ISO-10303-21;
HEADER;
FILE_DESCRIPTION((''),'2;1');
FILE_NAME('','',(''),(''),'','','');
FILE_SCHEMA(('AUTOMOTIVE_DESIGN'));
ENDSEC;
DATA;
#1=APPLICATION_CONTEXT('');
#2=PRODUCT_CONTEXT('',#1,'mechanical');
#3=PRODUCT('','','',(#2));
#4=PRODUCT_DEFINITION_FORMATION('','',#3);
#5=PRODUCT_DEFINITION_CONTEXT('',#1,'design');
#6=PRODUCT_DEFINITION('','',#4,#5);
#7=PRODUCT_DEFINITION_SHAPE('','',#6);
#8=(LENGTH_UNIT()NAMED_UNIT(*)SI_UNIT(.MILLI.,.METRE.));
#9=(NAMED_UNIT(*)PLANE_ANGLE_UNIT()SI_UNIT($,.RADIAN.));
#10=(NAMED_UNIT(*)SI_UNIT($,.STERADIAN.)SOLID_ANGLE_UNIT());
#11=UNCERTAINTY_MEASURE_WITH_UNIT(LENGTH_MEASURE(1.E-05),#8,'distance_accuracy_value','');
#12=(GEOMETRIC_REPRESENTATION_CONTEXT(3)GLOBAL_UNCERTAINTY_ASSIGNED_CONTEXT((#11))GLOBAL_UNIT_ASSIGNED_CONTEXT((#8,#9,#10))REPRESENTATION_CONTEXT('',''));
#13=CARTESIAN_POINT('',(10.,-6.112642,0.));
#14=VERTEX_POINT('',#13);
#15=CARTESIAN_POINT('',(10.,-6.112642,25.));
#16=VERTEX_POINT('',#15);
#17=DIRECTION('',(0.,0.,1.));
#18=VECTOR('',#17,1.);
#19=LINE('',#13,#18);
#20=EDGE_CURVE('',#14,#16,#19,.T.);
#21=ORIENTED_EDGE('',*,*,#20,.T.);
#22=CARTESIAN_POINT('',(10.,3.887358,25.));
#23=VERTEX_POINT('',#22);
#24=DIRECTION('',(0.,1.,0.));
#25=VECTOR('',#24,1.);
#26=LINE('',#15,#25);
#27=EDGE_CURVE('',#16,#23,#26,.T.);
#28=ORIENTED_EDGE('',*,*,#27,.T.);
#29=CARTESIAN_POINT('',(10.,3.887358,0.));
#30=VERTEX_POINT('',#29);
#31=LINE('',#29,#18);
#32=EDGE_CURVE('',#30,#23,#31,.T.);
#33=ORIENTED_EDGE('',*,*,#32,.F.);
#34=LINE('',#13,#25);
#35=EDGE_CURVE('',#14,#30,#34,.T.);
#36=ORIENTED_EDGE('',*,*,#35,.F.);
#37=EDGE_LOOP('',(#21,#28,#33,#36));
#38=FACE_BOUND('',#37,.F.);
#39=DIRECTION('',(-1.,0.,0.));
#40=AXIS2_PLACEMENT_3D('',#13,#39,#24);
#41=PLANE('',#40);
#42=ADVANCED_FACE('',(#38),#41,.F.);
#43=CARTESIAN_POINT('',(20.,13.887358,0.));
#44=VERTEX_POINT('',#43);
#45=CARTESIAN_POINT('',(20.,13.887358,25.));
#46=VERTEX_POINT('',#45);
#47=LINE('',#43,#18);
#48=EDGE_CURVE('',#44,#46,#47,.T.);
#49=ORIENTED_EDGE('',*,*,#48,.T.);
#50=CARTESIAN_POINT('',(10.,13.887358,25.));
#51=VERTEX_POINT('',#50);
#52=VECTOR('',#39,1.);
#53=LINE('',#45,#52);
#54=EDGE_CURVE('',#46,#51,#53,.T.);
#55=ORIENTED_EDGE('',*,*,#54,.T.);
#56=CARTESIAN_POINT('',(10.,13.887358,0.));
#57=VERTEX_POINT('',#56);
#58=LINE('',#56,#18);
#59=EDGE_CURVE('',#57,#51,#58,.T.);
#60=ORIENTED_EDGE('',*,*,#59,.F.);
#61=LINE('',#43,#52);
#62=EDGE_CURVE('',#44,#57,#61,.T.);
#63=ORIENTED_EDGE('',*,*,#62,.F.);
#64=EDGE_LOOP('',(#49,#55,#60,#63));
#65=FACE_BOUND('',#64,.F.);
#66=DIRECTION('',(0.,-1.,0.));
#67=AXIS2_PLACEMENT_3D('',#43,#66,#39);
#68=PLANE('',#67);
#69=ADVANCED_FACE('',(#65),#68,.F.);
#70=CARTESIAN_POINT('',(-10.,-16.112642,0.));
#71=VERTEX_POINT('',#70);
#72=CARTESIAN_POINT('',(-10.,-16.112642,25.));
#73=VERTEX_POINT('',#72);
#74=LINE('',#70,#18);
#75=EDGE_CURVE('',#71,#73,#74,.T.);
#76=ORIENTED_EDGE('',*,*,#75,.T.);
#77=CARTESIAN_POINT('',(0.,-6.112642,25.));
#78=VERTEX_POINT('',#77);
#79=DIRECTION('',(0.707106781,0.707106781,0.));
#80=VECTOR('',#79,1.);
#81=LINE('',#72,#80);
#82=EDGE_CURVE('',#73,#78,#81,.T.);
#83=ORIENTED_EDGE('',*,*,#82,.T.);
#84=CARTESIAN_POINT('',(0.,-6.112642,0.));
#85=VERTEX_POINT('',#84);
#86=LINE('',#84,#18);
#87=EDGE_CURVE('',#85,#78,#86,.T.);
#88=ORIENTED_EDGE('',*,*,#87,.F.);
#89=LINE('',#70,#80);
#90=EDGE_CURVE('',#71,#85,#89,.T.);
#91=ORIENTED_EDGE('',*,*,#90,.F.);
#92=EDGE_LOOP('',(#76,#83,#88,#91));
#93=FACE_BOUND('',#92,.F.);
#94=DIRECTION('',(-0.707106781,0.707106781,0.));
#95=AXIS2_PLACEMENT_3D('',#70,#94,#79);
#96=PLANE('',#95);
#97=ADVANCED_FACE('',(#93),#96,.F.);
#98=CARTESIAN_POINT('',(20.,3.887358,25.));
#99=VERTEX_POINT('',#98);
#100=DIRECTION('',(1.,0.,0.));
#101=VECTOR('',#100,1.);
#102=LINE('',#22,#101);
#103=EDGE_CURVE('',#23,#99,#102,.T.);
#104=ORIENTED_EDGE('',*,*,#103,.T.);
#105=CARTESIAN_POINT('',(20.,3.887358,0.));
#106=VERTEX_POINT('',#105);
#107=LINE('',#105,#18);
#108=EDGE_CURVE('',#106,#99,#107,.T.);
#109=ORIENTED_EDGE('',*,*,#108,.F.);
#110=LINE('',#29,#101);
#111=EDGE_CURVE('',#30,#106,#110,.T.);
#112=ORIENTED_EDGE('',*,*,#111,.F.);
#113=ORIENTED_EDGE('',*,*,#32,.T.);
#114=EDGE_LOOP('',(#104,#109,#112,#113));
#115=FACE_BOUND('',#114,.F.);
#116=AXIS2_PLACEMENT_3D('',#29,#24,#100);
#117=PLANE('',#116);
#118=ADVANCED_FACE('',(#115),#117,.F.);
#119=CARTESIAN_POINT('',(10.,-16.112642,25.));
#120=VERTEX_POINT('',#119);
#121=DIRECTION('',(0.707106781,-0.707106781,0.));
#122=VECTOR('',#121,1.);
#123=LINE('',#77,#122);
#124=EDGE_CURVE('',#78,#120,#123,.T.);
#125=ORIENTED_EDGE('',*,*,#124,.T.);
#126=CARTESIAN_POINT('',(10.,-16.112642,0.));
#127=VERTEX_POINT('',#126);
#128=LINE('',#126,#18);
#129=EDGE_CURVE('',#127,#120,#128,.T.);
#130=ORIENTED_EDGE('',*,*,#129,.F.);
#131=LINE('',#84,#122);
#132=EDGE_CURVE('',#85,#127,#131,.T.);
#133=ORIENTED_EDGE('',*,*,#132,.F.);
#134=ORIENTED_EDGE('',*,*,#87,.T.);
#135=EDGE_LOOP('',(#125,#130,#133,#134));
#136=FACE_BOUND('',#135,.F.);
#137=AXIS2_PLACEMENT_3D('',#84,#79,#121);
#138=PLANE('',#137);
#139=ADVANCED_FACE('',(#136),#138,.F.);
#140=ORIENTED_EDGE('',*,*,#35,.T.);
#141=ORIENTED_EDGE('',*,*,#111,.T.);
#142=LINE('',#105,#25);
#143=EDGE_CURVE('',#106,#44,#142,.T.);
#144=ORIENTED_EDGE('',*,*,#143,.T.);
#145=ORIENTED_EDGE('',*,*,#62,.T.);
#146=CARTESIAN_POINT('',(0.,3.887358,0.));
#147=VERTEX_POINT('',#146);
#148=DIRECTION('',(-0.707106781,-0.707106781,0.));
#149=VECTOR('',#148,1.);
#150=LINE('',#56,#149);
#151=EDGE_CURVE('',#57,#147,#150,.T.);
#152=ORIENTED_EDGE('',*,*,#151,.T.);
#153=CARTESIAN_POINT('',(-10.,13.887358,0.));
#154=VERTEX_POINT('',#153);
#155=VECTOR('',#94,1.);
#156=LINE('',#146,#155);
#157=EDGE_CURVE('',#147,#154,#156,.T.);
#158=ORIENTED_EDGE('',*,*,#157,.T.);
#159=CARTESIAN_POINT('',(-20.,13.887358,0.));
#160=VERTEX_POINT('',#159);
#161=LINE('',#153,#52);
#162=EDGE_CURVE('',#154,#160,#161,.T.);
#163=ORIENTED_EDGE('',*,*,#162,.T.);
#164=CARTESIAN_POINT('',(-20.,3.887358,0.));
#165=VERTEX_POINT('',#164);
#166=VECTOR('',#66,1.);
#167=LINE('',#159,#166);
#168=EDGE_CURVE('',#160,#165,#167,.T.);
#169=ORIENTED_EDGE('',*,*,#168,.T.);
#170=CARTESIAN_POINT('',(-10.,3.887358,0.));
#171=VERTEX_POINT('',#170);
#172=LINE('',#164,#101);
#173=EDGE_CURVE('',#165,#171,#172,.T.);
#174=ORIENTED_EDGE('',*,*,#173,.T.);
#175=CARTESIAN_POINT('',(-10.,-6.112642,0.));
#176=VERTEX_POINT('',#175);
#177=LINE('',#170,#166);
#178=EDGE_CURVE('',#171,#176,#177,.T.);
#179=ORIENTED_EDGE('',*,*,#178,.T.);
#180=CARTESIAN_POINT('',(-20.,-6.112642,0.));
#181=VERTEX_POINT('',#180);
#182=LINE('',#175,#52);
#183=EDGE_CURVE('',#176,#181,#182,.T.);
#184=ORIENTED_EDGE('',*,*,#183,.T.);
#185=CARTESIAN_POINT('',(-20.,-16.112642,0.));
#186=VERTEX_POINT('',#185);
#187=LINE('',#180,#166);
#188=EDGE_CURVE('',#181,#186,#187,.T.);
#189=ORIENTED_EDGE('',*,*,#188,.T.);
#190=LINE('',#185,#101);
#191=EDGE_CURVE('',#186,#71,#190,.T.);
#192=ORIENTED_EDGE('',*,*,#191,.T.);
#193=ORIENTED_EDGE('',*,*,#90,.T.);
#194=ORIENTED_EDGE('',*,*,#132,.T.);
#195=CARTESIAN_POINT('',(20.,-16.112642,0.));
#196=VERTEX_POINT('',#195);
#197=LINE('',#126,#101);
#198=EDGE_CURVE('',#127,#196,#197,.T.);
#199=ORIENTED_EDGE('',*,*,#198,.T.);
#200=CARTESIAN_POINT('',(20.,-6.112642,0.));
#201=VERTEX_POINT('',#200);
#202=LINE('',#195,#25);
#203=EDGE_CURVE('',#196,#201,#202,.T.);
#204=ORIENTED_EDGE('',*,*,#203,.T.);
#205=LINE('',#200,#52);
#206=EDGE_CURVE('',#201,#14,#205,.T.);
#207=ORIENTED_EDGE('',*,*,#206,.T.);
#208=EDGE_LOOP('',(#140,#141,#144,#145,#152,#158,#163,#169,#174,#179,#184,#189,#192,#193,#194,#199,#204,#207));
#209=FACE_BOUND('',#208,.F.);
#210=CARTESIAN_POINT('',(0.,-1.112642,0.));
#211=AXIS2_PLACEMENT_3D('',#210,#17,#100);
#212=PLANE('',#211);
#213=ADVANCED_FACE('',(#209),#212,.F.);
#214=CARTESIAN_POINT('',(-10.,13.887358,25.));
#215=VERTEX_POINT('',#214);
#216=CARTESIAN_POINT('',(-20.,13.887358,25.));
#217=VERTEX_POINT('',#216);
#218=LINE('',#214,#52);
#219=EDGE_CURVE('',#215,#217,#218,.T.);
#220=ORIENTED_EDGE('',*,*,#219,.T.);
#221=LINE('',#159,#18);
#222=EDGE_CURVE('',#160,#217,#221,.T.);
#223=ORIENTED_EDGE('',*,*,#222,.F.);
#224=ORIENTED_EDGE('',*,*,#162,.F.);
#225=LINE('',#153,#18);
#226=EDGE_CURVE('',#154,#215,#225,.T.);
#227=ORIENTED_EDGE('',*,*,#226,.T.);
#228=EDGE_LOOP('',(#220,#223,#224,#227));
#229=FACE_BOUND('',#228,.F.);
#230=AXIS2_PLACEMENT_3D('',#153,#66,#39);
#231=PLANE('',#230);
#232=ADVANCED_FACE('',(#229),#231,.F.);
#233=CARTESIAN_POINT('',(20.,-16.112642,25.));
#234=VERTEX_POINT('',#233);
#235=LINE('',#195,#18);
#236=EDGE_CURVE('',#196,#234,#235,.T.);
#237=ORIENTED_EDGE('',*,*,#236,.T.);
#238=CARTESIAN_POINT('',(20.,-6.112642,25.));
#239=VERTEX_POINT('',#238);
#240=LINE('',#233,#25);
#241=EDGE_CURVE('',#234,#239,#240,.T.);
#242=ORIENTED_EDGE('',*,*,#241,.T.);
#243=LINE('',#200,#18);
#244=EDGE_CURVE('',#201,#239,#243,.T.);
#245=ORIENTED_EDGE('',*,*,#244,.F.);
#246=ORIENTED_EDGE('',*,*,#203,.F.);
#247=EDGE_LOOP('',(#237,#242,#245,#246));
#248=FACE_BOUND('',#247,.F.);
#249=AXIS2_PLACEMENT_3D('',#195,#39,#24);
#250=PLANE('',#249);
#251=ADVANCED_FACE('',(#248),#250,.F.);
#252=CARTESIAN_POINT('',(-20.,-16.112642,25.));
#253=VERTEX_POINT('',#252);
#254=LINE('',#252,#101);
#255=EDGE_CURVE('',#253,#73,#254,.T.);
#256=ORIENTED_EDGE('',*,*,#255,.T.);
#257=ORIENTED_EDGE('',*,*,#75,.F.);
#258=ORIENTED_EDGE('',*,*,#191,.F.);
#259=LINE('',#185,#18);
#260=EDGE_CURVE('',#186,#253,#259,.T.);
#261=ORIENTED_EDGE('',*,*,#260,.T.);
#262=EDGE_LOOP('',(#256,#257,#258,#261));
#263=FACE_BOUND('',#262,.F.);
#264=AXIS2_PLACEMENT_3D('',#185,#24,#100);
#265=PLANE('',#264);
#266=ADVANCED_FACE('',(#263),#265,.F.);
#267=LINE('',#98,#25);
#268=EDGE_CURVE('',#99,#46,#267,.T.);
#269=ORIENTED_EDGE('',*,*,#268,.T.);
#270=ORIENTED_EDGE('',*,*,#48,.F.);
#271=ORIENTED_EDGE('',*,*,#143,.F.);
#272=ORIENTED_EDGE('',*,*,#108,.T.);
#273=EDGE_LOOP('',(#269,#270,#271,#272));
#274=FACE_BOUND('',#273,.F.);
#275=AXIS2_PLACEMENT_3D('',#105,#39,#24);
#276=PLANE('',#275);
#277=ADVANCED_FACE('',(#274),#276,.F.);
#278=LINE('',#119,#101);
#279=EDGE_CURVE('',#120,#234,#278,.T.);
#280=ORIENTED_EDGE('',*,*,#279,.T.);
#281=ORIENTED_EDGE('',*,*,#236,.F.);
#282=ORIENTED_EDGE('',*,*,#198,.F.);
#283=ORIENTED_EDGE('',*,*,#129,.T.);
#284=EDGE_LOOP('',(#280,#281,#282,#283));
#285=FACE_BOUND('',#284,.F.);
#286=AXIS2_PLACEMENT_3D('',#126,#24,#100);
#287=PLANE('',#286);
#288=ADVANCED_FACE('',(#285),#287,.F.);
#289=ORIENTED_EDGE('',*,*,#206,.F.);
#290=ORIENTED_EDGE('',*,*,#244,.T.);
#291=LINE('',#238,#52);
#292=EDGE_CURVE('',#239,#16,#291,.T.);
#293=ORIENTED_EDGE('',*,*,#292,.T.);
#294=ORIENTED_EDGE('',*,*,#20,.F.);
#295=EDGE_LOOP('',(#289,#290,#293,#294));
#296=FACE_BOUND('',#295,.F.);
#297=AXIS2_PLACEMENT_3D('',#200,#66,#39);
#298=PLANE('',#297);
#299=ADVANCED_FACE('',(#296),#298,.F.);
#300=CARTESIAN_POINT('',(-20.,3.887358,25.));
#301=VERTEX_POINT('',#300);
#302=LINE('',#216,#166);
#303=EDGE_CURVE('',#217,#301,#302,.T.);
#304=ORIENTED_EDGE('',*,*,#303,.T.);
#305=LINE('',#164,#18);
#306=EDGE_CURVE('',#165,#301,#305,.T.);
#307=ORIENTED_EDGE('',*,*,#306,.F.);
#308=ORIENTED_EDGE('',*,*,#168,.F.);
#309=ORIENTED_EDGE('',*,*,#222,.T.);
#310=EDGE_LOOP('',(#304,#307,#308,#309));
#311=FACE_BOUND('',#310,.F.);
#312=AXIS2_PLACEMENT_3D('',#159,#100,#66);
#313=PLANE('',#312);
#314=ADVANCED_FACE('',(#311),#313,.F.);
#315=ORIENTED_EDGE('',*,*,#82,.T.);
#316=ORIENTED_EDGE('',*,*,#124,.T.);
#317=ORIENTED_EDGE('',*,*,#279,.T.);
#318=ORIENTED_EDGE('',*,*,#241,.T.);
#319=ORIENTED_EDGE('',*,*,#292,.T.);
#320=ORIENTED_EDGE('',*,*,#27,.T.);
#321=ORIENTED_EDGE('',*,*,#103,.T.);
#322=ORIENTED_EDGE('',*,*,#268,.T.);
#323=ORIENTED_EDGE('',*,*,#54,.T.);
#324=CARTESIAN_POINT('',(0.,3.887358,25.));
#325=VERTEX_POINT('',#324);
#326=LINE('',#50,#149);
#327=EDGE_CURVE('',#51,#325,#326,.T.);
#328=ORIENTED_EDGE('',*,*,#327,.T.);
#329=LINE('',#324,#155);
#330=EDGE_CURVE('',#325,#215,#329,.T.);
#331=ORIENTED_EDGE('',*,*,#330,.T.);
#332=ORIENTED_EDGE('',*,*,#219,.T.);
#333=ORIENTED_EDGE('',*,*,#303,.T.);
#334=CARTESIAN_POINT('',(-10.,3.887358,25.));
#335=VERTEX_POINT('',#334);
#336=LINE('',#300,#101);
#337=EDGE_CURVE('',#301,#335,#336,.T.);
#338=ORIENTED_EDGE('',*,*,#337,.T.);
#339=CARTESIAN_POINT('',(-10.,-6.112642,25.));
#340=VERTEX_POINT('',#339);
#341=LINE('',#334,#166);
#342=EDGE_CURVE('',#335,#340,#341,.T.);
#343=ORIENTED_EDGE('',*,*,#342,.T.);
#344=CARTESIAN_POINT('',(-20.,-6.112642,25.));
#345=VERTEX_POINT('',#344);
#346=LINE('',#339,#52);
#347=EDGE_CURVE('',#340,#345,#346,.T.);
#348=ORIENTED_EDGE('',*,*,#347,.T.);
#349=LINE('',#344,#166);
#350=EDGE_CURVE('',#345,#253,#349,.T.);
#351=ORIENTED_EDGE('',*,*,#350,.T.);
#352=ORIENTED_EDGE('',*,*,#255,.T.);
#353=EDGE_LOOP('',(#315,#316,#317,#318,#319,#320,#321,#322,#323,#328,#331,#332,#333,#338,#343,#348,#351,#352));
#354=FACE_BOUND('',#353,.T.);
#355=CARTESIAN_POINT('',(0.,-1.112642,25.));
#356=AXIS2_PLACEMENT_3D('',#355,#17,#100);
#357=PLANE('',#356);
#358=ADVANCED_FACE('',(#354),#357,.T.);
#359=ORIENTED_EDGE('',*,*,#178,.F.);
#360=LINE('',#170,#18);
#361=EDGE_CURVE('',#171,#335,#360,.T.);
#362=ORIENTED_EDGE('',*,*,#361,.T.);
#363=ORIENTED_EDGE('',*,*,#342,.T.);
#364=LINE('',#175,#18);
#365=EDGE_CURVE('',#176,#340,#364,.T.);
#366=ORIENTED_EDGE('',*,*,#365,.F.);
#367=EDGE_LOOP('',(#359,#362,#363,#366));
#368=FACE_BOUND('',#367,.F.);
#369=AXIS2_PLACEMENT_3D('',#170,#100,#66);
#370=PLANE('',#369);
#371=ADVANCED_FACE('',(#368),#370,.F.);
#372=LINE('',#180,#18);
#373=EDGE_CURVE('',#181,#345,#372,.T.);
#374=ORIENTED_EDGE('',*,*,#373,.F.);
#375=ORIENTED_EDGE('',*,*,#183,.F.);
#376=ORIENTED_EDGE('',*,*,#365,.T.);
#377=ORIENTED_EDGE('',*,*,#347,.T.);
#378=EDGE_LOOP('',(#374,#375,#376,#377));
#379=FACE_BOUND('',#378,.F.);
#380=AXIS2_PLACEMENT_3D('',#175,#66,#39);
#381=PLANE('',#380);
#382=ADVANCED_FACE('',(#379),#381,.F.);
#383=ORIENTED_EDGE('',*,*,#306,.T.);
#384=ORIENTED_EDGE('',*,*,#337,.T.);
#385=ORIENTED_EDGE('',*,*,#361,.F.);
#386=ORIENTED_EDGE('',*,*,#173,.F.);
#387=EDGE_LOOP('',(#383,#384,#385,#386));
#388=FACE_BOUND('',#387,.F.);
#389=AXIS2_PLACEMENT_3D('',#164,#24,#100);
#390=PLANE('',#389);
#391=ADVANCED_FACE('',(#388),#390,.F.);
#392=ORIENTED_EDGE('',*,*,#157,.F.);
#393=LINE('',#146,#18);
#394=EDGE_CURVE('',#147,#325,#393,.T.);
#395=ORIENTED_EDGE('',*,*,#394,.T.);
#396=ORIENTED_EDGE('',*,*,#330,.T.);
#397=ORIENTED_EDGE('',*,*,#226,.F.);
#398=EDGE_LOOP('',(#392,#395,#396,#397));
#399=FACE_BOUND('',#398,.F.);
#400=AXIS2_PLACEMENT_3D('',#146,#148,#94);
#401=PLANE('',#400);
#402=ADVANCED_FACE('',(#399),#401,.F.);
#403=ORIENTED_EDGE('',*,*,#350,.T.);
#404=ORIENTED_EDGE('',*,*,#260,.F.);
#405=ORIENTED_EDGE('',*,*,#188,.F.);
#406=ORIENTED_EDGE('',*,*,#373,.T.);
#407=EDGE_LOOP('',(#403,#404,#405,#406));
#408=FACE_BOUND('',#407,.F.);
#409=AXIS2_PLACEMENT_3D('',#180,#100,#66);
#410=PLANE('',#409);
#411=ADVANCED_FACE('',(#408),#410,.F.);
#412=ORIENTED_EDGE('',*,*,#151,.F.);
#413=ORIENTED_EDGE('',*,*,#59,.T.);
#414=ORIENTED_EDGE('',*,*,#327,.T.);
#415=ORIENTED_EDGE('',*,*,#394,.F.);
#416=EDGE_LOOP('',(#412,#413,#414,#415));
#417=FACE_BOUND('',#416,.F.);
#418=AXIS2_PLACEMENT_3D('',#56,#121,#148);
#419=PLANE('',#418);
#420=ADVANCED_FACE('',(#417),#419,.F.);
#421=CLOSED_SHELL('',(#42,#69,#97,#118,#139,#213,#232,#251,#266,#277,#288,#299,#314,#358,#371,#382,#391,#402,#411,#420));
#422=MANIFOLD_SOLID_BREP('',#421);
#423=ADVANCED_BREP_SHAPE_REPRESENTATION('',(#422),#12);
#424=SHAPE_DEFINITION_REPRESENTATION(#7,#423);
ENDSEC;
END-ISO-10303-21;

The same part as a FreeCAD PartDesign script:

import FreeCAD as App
import Part
import Sketcher


def add_polygon(sketch, points):
    """Adds a closed chain of lines whose ends are joined by coincident constraints."""
    first, n = sketch.GeometryCount, len(points)
    for a, b in zip(points, points[1:] + points[:1]):
        sketch.addGeometry(Part.LineSegment(App.Vector(*a, 0), App.Vector(*b, 0)), False)
    for i in range(n):
        sketch.addConstraint(Sketcher.Constraint("Coincident", first + i, 2, first + (i + 1) % n, 1))

doc = App.newDocument("Part")
params = doc.addObject("Spreadsheet::Sheet", "Params")
for row, (alias, value) in enumerate([
    ("sketch1_width", "10 mm"),
    ("pad1_length", "25 mm"),
], start=1):
    params.set(f"A{row}", alias)
    params.set(f"B{row}", "=" + value)
    params.setAlias(f"B{row}", alias)

body = doc.addObject("PartDesign::Body", "Body")

# Sketch on XY plane
sketch1 = body.newObject("Sketcher::SketchObject", "Sketch")
sketch1.AttachmentSupport = (doc.getObject("XY_Plane"), [""])
sketch1.MapMode = "FlatFace"
add_polygon(sketch1, [(-10, 13.887358), (-20, 13.887358), (-20, 3.887358), (-10, 3.887358), (-10, -6.112642), (-20, -6.112642), (-20, -16.112642), (-10, -16.112642), (0, -6.112642), (10, -16.112642), (20, -16.112642), (20, -6.112642), (10, -6.112642), (10, 3.887358), (20, 3.887358), (20, 13.887358), (10, 13.887358), (0, 3.887358)])  # lines 0-17
sketch1.addConstraint([
    Sketcher.Constraint("Horizontal", 0),
    Sketcher.Constraint("Vertical", 1),
    Sketcher.Constraint("Horizontal", 2),
    Sketcher.Constraint("Vertical", 3),
    Sketcher.Constraint("Horizontal", 4),
    Sketcher.Constraint("Vertical", 5),
    Sketcher.Constraint("Horizontal", 6),
    Sketcher.Constraint("Horizontal", 9),
    Sketcher.Constraint("Vertical", 10),
    Sketcher.Constraint("Horizontal", 11),
    Sketcher.Constraint("Vertical", 12),
    Sketcher.Constraint("Horizontal", 13),
    Sketcher.Constraint("Vertical", 14),
    Sketcher.Constraint("Horizontal", 15),
    Sketcher.Constraint("Symmetric", 6, 2, 8, 2, -2),
    Sketcher.Constraint("Symmetric", 4, 2, 10, 2, -2),
    Sketcher.Constraint("Symmetric", 2, 2, 12, 2, -2),
    Sketcher.Constraint("Symmetric", 0, 2, 14, 2, -2),
    Sketcher.Constraint("PointOnObject", 7, 2, -2),
    Sketcher.Constraint("PointOnObject", 16, 2, -2),
    Sketcher.Constraint("Perpendicular", 7, 8),
    Sketcher.Constraint("Perpendicular", 8, 16),
    Sketcher.Constraint("Perpendicular", 16, 17),
    Sketcher.Constraint("Horizontal", 4, 2, 7, 2),
    Sketcher.Constraint("Horizontal", 13, 2, 16, 2),
    Sketcher.Constraint("Vertical", 1, 2, 4, 2),
    Sketcher.Constraint("Vertical", 3, 2, 6, 2),
    Sketcher.Constraint("Vertical", 12, 2, 15, 2),
    Sketcher.Constraint("Equal", 15, 1),
    Sketcher.Constraint("Equal", 1, 3),
    Sketcher.Constraint("DistanceX", 0, 2, 0, 1, 10.0),
    Sketcher.Constraint("DistanceY", -1, 1, 0, 2, 13.887358),
])
sketch1.setExpression("Constraints[48]", "Params.sketch1_width")
pad1 = body.newObject("PartDesign::Pad", "Pad")
pad1.Profile = sketch1
pad1.setExpression("Length", "Params.pad1_length")

doc.recompute()
